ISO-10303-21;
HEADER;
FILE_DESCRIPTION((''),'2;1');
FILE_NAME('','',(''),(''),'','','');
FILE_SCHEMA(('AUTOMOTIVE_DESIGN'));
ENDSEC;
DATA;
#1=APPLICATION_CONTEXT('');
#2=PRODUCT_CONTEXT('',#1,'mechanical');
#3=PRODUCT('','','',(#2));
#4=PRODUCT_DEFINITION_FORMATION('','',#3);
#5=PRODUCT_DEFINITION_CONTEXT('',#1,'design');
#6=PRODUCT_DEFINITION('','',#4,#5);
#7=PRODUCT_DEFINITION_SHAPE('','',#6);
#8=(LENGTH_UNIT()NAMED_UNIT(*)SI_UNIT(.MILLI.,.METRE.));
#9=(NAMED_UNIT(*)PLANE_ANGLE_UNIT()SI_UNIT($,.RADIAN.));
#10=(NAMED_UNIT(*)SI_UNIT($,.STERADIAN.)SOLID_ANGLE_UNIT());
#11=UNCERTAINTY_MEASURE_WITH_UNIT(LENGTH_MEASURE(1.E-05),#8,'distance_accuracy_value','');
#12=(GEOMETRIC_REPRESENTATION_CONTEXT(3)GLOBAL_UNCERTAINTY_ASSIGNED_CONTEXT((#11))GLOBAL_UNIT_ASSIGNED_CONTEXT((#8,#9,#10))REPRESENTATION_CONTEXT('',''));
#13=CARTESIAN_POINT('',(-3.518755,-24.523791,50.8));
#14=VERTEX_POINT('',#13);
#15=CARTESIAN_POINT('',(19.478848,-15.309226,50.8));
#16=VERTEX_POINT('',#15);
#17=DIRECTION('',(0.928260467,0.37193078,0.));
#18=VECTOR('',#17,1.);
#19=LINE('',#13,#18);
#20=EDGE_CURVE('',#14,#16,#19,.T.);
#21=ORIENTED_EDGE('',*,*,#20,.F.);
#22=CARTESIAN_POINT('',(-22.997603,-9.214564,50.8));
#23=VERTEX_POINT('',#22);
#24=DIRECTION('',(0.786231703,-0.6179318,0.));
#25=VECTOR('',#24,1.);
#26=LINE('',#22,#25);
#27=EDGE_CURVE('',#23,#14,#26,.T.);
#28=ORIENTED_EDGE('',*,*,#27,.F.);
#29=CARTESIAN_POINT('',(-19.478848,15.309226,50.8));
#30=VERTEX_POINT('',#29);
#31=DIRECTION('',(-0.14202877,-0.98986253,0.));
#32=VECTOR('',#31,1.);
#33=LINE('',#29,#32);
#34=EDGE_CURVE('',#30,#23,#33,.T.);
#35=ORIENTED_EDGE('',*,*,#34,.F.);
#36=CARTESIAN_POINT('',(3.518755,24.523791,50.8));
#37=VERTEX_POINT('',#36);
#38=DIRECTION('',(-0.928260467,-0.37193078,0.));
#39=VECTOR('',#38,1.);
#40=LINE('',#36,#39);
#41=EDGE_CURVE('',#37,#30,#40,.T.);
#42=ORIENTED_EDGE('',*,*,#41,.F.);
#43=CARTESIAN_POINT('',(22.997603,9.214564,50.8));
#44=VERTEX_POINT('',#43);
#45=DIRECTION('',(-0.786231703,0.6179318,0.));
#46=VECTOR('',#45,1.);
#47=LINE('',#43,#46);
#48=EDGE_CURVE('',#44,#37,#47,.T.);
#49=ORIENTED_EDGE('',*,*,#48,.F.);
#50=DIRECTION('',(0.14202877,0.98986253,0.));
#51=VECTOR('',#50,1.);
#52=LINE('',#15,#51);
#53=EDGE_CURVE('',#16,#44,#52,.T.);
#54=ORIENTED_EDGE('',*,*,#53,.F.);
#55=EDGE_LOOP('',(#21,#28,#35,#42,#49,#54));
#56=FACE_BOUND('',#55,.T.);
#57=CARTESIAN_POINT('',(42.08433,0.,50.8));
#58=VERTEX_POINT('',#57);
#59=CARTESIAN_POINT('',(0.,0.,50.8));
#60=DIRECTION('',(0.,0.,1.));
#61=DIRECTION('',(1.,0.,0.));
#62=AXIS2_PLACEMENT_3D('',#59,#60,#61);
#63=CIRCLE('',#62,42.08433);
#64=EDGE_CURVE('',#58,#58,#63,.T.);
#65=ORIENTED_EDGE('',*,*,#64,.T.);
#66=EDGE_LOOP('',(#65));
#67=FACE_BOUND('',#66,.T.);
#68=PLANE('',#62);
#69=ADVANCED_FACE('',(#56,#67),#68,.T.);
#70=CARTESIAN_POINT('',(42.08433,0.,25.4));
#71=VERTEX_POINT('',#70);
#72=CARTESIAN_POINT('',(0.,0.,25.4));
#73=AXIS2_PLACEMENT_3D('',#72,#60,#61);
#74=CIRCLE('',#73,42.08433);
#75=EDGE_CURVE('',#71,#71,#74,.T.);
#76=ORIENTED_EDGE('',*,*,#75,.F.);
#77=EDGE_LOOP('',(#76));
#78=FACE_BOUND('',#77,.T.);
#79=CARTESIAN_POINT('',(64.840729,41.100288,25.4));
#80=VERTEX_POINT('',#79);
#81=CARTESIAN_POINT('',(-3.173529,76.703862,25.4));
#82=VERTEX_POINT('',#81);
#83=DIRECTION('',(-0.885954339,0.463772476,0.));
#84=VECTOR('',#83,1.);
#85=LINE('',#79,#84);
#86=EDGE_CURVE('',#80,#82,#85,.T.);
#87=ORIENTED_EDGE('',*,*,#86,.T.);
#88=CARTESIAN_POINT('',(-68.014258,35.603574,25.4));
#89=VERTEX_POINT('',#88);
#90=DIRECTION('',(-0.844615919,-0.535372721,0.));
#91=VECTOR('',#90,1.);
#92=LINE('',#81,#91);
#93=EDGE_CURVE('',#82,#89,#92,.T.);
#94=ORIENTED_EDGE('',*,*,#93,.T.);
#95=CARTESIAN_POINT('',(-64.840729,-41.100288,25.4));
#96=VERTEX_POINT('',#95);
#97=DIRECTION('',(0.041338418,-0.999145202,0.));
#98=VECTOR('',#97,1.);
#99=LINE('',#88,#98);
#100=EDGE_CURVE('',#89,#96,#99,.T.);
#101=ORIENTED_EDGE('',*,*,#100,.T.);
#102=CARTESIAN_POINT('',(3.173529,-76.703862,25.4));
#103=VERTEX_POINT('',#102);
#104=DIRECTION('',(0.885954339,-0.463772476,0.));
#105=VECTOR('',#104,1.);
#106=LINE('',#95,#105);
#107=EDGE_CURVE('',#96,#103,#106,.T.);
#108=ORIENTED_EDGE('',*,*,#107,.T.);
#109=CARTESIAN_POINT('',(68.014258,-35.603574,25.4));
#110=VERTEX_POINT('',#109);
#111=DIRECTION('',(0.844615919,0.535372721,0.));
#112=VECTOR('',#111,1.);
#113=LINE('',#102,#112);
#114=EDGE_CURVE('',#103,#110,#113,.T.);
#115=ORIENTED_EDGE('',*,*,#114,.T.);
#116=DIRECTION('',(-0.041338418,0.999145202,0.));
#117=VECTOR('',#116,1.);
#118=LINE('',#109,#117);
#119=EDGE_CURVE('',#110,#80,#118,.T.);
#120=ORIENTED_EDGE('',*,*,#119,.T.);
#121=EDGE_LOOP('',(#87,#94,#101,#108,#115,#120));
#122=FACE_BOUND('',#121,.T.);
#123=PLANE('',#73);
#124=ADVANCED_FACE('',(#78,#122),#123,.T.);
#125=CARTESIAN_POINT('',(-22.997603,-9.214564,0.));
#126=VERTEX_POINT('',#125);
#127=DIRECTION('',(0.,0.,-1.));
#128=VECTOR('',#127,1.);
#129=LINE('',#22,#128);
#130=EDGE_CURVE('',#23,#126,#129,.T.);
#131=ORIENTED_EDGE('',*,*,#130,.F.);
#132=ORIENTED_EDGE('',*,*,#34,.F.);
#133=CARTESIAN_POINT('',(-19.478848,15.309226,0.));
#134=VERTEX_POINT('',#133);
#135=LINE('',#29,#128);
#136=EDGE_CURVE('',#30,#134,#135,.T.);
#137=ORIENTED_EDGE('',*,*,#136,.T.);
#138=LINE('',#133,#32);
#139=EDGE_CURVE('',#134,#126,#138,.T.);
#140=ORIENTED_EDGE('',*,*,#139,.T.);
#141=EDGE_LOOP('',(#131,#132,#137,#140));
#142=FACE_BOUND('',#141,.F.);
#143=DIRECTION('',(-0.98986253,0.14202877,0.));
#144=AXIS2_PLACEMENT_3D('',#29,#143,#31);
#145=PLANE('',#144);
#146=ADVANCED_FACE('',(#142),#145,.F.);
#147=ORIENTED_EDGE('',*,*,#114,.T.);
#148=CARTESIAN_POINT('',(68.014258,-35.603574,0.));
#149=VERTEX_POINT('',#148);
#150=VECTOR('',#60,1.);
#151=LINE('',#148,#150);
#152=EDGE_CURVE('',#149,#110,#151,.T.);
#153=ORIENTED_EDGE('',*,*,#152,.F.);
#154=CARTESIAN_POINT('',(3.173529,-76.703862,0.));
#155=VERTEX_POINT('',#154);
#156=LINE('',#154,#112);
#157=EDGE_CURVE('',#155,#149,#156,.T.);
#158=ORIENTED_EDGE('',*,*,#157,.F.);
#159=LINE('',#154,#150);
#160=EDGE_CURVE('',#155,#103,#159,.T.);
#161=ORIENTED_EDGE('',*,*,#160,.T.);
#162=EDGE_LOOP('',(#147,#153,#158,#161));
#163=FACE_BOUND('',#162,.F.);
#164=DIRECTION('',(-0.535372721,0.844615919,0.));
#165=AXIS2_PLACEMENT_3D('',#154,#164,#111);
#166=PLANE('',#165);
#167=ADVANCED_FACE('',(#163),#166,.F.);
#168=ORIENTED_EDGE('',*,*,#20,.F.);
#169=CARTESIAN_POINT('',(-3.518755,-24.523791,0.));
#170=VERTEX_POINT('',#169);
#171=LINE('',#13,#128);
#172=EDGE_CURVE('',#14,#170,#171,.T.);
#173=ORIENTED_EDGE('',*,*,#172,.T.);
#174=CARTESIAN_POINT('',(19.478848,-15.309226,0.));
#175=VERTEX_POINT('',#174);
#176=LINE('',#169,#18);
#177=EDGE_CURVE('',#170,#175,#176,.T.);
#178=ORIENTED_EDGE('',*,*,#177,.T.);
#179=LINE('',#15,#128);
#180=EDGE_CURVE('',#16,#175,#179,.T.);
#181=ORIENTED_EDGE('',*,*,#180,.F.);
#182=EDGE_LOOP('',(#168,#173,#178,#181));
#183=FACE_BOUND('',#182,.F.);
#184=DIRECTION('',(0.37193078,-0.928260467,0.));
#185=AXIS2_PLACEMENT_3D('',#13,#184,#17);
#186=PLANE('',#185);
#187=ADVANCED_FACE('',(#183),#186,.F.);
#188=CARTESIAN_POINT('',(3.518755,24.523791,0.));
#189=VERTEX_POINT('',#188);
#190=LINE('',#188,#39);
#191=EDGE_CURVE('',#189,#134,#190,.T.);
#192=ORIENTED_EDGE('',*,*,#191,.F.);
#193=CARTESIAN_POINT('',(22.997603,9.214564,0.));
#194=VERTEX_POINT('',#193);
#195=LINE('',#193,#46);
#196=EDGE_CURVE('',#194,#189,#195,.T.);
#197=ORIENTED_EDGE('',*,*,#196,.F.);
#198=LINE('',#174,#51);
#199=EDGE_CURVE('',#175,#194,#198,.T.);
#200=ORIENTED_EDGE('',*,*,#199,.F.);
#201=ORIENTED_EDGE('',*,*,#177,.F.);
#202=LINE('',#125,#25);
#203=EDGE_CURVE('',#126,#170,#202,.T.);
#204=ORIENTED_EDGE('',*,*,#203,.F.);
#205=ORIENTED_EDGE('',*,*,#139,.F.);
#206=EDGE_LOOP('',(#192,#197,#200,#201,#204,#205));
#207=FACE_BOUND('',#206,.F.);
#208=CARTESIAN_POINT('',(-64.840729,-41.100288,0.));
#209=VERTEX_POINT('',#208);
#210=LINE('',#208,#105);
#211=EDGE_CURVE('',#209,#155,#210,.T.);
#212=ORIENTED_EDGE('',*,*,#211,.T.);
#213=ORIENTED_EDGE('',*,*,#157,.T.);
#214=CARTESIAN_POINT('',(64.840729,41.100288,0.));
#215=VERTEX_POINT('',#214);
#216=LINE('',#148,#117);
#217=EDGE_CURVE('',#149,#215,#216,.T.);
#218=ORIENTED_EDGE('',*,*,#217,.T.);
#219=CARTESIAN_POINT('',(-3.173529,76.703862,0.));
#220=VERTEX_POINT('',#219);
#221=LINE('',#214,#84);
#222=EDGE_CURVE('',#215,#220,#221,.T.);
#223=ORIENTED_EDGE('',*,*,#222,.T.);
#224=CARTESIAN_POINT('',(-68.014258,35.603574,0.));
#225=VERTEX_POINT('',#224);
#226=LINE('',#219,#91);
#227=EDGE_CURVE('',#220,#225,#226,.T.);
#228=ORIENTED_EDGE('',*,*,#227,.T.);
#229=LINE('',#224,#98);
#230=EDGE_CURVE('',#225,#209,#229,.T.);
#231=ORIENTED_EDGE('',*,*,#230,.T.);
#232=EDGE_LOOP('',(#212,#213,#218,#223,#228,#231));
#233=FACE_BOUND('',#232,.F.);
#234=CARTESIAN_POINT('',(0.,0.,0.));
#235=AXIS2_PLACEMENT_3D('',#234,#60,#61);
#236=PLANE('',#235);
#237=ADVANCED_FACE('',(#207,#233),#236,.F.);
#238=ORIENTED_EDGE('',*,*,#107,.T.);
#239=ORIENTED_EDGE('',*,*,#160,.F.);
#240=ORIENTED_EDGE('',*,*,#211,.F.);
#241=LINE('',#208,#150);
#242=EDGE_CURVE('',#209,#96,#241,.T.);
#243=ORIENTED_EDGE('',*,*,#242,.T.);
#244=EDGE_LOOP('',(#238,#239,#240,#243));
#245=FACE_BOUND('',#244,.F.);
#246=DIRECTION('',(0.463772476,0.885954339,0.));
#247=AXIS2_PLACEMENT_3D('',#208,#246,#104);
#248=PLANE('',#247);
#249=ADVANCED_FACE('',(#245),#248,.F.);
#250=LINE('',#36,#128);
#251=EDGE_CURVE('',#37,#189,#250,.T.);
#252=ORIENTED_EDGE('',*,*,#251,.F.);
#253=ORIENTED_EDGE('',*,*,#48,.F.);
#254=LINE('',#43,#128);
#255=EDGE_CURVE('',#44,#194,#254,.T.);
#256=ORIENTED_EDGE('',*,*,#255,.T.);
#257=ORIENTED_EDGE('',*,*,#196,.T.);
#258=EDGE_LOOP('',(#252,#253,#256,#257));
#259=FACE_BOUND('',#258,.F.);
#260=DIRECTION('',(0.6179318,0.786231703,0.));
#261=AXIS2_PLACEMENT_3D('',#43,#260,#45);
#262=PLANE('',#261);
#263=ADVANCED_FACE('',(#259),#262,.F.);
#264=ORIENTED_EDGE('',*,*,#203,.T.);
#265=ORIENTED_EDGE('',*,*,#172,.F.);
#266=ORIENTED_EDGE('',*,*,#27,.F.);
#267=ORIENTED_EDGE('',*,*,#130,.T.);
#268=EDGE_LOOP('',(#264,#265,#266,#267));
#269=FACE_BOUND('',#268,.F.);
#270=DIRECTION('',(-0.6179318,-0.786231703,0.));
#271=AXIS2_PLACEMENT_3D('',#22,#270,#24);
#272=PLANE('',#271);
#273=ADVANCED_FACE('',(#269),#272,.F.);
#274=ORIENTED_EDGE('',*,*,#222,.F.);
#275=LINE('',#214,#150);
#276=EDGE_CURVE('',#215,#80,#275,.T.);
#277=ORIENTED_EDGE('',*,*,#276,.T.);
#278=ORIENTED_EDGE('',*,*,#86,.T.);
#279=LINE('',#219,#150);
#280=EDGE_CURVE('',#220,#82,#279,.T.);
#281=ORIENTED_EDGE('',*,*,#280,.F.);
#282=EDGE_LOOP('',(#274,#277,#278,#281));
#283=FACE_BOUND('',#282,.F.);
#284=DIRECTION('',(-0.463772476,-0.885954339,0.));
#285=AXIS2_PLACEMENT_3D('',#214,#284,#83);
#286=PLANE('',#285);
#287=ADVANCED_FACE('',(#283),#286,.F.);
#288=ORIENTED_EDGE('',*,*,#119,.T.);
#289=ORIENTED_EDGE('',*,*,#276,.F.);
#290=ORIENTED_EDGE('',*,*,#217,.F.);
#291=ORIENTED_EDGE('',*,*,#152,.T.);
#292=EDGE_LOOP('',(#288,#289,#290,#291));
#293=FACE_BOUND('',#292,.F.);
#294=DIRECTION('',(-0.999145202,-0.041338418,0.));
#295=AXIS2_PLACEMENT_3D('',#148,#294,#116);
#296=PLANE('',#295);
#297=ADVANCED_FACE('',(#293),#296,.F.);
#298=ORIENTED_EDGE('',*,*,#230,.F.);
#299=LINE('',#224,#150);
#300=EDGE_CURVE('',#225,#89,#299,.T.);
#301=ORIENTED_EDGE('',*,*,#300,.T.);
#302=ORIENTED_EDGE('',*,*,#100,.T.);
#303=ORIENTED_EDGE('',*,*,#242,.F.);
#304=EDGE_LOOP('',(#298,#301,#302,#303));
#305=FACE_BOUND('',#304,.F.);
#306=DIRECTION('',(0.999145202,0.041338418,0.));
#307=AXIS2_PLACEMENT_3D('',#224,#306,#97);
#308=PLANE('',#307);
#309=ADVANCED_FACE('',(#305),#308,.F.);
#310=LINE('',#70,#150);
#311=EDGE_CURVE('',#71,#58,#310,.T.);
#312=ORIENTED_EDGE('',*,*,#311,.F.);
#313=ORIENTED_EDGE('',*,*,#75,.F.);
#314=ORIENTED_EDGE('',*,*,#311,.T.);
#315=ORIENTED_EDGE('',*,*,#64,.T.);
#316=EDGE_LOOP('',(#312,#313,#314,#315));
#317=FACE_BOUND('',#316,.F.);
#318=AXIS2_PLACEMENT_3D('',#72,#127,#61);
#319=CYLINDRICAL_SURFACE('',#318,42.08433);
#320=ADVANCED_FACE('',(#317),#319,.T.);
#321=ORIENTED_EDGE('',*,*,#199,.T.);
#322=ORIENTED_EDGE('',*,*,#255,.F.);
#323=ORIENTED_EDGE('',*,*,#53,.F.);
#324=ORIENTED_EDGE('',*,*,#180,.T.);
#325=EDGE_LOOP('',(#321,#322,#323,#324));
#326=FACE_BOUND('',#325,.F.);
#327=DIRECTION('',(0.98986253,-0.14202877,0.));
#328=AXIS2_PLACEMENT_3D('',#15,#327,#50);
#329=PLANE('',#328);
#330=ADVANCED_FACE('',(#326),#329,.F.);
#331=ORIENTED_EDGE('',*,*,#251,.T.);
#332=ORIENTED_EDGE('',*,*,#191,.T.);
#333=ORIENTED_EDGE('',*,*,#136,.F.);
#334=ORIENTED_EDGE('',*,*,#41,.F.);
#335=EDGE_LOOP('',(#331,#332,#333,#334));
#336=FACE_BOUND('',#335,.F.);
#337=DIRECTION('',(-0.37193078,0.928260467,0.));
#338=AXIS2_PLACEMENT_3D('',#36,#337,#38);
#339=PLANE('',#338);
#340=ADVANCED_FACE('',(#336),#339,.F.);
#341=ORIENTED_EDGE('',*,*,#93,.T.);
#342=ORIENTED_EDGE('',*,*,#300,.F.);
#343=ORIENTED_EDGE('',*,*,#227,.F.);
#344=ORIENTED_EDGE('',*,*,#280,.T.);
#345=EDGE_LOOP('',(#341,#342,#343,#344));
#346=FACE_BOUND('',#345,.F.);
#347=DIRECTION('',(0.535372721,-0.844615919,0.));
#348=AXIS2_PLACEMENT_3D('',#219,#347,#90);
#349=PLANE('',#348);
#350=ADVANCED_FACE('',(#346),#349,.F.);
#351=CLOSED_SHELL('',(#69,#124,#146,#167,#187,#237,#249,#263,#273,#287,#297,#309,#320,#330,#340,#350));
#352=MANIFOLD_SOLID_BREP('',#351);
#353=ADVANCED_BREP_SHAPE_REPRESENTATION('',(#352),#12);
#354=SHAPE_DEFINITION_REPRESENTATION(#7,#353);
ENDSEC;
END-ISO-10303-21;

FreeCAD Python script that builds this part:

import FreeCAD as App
import Part
import Sketcher
from FreeCAD import Vector
Q = App.Units.Quantity


def add_polygon(sketch, points):
    """Adds a closed chain of lines whose ends are joined by coincident constraints."""
    first, n = sketch.GeometryCount, len(points)
    for a, b in zip(points, points[1:] + points[:1]):
        sketch.addGeometry(Part.LineSegment(App.Vector(*a, 0), App.Vector(*b, 0)), False)
    for i in range(n):
        sketch.addConstraint(Sketcher.Constraint("Coincident", first + i, 2, first + (i + 1) % n, 1))

doc = App.newDocument("Part")
body = doc.addObject("PartDesign::Body", "Body")

sketch1 = body.newObject("Sketcher::SketchObject", "Sketch")
sketch1.AttachmentSupport = (doc.getObject("XY_Plane"), [""])
sketch1.MapMode = "FlatFace"
add_polygon(sketch1, [(-3, 77), (-68, 36), (-65, -41), (3, -77), (68, -36), (65, 41)])
sketch1.addConstraint(Sketcher.Constraint("Symmetric", 0, 2, 3, 2, -1, 1))
sketch1.addConstraint(Sketcher.Constraint("Symmetric", 1, 2, 4, 2, -1, 1))
sketch1.addConstraint(Sketcher.Constraint("Symmetric", 2, 2, 5, 2, -1, 1))
sketch1.addConstraint(Sketcher.Constraint("Equal", 0, 1))
sketch1.addConstraint(Sketcher.Constraint("Equal", 1, 2))
sketch1.addConstraint(Sketcher.Constraint("DistanceX", 2, 2, 4, 2, 61.6672))
sketch1.addConstraint(Sketcher.Constraint("DistanceX", 0, 2, -1, 1, 68.014258))
sketch1.addConstraint(Sketcher.Constraint("DistanceX", 1, 2, -1, 1, 64.840729))
sketch1.addConstraint(Sketcher.Constraint("DistanceY", 2, 2, -1, 1, 76.703862))
pad1 = body.newObject("PartDesign::Pad", "Pad")
pad1.Profile = sketch1
pad1.Length = Q("1 in")

sketch2 = body.newObject("Sketcher::SketchObject", "Sketch001")
sketch2.AttachmentSupport = (doc.getObject("XY_Plane"), [""])
sketch2.MapMode = "FlatFace"
sketch2.AttachmentOffset = App.Placement(Vector(0, 0, 1 * 25.4), App.Rotation())
sketch2.addGeometry(Part.Circle(Vector(0, 0, 0), Vector(0, 0, 1), 42), False)
sketch2.addConstraint(Sketcher.Constraint("Coincident", 0, 3, -1, 1))
sketch2.addConstraint(Sketcher.Constraint("Diameter", 0, 84.16866))
pad2 = body.newObject("PartDesign::Pad", "Pad001")
pad2.Profile = sketch2
pad2.Length = Q("1 in")

sketch3 = body.newObject("Sketcher::SketchObject", "Sketch002")
sketch3.AttachmentSupport = (doc.getObject("XY_Plane"), [""])
sketch3.MapMode = "FlatFace"
sketch3.AttachmentOffset = App.Placement(Vector(0, 0, 2 * 25.4), App.Rotation())
add_polygon(sketch3, [(4, 25), (-19, 15), (-23, -9), (-4, -25), (19, -15), (23, 9)])
sketch3.addConstraint(Sketcher.Constraint("Symmetric", 0, 2, 3, 2, -1, 1))
sketch3.addConstraint(Sketcher.Constraint("Symmetric", 1, 2, 4, 2, -1, 1))
sketch3.addConstraint(Sketcher.Constraint("Symmetric", 2, 2, 5, 2, -1, 1))
sketch3.addConstraint(Sketcher.Constraint("Equal", 0, 1))
sketch3.addConstraint(Sketcher.Constraint("Equal", 1, 2))
sketch3.addConstraint(Sketcher.Constraint("DistanceY", 2, 2, -1, 1, 24.523791))
sketch3.addConstraint(Sketcher.Constraint("DistanceY", 1, 2, 0, 2, 24.52379))
sketch3.addConstraint(Sketcher.Constraint("DistanceX", 1, 2, 2, 2, 19.478848))
sketch3.addConstraint(Sketcher.Constraint("DistanceX", 1, 2, 3, 2, 42.476451))
pocket1 = body.newObject("PartDesign::Pocket", "Pocket")
pocket1.Profile = sketch3
pocket1.Type = "ThroughAll"

doc.recompute()
